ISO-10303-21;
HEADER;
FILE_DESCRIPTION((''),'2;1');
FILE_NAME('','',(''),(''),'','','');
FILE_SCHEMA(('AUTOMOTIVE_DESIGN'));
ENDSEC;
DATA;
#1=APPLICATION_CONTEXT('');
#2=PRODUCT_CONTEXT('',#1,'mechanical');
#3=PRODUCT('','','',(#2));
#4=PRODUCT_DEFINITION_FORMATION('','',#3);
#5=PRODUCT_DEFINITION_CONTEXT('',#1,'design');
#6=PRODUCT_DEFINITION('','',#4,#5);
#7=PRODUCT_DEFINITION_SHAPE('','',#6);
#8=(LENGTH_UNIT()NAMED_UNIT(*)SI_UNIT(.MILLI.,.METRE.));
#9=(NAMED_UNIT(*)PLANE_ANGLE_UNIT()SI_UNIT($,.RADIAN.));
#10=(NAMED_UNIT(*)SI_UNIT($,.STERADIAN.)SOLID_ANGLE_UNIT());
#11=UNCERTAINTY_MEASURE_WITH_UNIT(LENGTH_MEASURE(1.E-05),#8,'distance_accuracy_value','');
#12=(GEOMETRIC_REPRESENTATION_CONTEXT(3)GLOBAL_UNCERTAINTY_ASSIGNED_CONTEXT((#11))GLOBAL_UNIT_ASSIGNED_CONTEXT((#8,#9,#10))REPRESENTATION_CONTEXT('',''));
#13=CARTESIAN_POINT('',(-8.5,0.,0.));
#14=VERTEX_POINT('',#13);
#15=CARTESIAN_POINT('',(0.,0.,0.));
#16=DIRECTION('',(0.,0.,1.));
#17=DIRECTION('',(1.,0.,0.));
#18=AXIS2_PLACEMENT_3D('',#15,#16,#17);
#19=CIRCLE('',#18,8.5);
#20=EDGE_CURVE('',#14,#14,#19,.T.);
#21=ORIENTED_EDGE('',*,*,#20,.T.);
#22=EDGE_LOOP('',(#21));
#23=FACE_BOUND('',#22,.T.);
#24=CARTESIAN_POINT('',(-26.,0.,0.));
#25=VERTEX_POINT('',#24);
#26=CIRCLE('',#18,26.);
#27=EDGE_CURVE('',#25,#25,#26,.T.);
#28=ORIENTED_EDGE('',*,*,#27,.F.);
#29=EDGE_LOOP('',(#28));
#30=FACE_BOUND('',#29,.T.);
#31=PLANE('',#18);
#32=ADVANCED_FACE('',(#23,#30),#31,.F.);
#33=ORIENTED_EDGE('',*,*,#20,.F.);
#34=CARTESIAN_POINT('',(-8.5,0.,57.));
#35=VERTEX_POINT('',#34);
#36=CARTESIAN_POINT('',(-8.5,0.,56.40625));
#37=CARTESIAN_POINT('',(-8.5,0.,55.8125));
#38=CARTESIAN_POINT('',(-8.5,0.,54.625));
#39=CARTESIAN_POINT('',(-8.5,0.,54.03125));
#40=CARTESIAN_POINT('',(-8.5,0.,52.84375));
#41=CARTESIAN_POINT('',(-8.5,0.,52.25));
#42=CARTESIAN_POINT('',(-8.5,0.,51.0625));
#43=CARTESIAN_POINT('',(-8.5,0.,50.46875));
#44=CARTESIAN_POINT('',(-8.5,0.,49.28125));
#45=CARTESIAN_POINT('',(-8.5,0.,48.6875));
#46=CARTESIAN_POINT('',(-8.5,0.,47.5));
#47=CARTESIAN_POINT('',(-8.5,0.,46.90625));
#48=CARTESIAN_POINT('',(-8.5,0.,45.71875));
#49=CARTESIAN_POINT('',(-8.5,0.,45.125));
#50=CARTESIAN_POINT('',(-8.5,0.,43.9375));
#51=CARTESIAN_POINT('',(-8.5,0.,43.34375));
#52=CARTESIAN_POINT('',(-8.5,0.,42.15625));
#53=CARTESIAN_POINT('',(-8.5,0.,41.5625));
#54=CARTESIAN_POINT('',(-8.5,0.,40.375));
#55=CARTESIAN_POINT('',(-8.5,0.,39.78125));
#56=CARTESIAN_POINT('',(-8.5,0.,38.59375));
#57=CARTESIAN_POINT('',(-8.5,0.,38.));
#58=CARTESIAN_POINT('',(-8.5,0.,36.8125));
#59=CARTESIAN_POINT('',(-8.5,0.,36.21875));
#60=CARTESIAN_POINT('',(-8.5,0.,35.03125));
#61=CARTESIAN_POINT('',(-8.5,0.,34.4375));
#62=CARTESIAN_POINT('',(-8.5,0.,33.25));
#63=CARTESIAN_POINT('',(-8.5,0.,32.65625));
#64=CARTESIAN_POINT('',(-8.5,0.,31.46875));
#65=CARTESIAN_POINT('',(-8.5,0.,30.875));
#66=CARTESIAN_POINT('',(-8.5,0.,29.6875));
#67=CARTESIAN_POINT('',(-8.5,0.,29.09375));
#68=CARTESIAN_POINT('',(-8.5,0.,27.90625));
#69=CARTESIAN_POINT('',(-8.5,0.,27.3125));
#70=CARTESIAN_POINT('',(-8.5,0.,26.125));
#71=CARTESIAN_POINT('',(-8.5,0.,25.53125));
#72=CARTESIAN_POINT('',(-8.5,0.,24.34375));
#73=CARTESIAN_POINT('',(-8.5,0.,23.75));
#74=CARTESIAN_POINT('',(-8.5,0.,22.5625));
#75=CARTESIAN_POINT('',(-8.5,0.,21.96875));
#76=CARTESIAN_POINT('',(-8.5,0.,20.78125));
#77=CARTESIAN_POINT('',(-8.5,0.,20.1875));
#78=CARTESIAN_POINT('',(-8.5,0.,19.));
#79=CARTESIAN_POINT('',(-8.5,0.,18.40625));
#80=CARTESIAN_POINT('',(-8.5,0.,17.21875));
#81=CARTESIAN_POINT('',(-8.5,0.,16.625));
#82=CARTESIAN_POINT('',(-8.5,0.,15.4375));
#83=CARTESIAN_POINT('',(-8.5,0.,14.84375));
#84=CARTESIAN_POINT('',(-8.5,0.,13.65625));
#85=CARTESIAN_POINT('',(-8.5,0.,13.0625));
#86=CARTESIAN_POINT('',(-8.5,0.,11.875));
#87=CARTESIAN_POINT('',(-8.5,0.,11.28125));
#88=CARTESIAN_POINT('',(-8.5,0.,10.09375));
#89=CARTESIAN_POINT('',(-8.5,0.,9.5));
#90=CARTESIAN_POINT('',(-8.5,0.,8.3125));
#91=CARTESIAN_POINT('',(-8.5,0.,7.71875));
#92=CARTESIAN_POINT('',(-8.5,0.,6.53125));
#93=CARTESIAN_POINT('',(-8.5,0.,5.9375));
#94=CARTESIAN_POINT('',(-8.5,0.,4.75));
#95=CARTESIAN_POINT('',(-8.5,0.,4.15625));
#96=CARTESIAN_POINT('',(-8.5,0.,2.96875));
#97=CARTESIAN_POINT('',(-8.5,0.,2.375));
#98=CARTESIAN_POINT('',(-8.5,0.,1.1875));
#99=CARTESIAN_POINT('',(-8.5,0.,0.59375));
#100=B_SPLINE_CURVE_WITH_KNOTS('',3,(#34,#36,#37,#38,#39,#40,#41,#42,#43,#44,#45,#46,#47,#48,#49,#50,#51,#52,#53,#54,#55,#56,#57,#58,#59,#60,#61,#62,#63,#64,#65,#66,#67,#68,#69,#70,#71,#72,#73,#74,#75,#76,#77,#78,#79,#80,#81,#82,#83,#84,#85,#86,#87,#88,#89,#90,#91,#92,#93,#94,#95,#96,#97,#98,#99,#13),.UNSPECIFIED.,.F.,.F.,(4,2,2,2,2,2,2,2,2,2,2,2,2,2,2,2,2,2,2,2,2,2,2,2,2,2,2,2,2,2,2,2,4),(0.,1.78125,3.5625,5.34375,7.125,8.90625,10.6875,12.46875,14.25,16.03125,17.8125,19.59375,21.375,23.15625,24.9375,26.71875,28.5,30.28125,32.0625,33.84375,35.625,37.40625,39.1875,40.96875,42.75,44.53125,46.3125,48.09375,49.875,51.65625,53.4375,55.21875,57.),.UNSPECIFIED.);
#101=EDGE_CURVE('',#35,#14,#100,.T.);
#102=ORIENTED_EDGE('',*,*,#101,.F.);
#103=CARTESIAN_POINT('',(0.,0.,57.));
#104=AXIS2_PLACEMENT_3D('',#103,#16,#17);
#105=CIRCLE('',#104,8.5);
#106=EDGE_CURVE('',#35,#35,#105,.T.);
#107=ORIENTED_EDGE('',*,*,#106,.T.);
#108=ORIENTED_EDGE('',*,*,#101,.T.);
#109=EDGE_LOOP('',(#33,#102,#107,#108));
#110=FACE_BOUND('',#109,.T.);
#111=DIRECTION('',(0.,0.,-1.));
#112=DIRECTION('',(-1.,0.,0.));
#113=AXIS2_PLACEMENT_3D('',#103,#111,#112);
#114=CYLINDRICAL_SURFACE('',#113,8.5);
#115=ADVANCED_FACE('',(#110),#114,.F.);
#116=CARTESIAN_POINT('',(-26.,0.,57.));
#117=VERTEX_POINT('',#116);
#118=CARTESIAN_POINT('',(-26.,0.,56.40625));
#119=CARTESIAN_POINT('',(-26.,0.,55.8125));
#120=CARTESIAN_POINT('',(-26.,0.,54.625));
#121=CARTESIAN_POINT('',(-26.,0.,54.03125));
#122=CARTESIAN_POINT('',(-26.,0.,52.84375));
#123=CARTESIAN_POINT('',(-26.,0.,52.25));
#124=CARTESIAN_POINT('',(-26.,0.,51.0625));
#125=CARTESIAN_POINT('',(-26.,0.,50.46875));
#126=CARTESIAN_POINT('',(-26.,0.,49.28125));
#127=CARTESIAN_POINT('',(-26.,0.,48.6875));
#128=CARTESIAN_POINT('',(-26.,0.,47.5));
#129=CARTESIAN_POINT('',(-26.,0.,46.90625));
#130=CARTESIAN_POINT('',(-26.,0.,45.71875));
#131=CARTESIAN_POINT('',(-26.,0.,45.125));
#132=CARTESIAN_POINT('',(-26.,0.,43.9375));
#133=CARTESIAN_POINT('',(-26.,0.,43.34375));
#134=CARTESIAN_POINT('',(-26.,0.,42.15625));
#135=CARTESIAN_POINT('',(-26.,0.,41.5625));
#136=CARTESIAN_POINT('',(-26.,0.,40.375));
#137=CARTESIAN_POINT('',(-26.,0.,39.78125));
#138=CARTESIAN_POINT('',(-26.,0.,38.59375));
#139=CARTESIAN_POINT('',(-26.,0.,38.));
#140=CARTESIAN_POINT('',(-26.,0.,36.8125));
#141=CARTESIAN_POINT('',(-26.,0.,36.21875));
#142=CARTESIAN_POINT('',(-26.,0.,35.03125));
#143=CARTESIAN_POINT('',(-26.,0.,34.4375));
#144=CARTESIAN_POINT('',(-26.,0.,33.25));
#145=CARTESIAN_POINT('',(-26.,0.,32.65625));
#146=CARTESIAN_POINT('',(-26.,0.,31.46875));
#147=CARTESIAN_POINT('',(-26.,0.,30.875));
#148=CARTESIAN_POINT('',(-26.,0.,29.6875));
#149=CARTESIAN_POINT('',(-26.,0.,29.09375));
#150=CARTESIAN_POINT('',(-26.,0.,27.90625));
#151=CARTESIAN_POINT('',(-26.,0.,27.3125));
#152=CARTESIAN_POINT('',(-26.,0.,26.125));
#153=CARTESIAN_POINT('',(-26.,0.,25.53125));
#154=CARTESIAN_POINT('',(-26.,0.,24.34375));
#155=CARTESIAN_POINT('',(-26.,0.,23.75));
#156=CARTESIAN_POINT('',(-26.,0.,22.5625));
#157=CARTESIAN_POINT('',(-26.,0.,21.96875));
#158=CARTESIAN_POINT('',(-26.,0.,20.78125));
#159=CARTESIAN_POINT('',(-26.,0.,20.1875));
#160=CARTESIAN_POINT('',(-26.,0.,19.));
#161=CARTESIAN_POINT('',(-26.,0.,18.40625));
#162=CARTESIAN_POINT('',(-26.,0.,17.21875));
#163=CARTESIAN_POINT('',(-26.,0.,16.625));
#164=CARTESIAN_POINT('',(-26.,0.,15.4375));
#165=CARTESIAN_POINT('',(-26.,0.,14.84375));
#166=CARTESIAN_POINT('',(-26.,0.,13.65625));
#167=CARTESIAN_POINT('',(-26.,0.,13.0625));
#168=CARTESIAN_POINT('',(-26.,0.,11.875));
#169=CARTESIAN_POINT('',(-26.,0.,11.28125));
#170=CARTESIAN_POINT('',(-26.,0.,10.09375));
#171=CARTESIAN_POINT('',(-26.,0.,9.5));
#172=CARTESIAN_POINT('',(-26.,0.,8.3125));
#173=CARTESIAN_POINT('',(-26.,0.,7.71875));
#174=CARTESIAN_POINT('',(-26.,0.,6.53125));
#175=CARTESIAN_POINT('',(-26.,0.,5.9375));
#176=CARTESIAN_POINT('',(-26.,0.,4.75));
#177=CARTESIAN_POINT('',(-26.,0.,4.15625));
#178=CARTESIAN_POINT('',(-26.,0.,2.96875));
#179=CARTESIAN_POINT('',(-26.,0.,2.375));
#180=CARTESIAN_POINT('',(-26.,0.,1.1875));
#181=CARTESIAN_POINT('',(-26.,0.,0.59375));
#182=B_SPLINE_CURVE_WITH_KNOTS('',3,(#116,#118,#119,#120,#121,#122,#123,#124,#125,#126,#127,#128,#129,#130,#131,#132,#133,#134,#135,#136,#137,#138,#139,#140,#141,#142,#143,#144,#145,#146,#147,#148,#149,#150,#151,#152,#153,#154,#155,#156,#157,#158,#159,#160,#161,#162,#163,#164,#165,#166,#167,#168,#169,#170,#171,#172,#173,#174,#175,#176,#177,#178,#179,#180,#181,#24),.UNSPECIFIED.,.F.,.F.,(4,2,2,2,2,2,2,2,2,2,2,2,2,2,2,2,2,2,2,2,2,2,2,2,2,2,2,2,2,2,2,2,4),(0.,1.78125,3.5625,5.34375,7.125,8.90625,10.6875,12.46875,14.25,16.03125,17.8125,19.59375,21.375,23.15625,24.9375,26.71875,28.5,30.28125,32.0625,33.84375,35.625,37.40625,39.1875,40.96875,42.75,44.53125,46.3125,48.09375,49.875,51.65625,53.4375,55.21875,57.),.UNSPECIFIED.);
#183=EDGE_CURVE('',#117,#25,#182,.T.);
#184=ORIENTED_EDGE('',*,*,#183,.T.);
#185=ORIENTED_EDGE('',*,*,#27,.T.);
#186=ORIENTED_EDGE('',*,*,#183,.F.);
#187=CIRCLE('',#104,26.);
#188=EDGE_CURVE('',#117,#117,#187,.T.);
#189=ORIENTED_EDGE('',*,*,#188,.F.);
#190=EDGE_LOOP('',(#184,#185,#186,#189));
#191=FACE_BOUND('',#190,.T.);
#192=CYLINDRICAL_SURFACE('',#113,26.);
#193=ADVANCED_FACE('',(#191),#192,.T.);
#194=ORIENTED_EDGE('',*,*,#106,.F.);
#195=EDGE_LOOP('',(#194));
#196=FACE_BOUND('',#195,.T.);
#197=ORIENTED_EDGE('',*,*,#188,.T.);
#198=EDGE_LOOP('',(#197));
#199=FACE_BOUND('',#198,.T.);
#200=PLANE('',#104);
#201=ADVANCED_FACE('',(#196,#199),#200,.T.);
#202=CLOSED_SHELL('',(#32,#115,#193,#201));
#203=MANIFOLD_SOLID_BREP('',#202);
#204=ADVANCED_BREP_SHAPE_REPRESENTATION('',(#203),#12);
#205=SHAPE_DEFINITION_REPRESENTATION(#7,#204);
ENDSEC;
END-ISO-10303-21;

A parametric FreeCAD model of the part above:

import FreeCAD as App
import Part
import Sketcher

V = App.Vector
Q = App.Units.Quantity

doc = App.newDocument("Part")
params = doc.addObject("Spreadsheet::Sheet", "Params")
for row, (alias, value) in enumerate([
    ("sketch1_diameter", "52 mm"),
    ("sketch1_diameter2", "17 mm"),
    ("pad1_length", "57 mm"),
], start=1):
    params.set(f"A{row}", alias)
    params.set(f"B{row}", "=" + value)
    params.setAlias(f"B{row}", alias)

body = doc.addObject("PartDesign::Body", "Body")

# Sketch on XY plane
sketch1 = doc.addObject("Sketcher::SketchObject", "Sketch")
body.addObject(sketch1)
sketch1.AttachmentSupport = (doc.XY_Plane, [""])
sketch1.MapMode = "FlatFace"
sketch1.addGeometry([
    Part.Circle(V(0, 0, 0), V(0, 0, 1), 26),
    Part.Circle(V(0, 0, 0), V(0, 0, 1), 8),
], False)
sketch1.addConstraint([
    Sketcher.Constraint("Coincident", 0, 3, -1, 1),
    Sketcher.Constraint("Coincident", 1, 3, -1, 1),
    Sketcher.Constraint("Diameter", 0, Q("52 mm")),
    Sketcher.Constraint("Diameter", 1, Q("17 mm")),
])
sketch1.setExpression("Constraints[2]", "Params.sketch1_diameter")
sketch1.setExpression("Constraints[3]", "Params.sketch1_diameter2")
pad1 = doc.addObject("PartDesign::Pad", "Pad")
body.addObject(pad1)
pad1.Profile = sketch1
pad1.setExpression("Length", "Params.pad1_length")

doc.recompute()
